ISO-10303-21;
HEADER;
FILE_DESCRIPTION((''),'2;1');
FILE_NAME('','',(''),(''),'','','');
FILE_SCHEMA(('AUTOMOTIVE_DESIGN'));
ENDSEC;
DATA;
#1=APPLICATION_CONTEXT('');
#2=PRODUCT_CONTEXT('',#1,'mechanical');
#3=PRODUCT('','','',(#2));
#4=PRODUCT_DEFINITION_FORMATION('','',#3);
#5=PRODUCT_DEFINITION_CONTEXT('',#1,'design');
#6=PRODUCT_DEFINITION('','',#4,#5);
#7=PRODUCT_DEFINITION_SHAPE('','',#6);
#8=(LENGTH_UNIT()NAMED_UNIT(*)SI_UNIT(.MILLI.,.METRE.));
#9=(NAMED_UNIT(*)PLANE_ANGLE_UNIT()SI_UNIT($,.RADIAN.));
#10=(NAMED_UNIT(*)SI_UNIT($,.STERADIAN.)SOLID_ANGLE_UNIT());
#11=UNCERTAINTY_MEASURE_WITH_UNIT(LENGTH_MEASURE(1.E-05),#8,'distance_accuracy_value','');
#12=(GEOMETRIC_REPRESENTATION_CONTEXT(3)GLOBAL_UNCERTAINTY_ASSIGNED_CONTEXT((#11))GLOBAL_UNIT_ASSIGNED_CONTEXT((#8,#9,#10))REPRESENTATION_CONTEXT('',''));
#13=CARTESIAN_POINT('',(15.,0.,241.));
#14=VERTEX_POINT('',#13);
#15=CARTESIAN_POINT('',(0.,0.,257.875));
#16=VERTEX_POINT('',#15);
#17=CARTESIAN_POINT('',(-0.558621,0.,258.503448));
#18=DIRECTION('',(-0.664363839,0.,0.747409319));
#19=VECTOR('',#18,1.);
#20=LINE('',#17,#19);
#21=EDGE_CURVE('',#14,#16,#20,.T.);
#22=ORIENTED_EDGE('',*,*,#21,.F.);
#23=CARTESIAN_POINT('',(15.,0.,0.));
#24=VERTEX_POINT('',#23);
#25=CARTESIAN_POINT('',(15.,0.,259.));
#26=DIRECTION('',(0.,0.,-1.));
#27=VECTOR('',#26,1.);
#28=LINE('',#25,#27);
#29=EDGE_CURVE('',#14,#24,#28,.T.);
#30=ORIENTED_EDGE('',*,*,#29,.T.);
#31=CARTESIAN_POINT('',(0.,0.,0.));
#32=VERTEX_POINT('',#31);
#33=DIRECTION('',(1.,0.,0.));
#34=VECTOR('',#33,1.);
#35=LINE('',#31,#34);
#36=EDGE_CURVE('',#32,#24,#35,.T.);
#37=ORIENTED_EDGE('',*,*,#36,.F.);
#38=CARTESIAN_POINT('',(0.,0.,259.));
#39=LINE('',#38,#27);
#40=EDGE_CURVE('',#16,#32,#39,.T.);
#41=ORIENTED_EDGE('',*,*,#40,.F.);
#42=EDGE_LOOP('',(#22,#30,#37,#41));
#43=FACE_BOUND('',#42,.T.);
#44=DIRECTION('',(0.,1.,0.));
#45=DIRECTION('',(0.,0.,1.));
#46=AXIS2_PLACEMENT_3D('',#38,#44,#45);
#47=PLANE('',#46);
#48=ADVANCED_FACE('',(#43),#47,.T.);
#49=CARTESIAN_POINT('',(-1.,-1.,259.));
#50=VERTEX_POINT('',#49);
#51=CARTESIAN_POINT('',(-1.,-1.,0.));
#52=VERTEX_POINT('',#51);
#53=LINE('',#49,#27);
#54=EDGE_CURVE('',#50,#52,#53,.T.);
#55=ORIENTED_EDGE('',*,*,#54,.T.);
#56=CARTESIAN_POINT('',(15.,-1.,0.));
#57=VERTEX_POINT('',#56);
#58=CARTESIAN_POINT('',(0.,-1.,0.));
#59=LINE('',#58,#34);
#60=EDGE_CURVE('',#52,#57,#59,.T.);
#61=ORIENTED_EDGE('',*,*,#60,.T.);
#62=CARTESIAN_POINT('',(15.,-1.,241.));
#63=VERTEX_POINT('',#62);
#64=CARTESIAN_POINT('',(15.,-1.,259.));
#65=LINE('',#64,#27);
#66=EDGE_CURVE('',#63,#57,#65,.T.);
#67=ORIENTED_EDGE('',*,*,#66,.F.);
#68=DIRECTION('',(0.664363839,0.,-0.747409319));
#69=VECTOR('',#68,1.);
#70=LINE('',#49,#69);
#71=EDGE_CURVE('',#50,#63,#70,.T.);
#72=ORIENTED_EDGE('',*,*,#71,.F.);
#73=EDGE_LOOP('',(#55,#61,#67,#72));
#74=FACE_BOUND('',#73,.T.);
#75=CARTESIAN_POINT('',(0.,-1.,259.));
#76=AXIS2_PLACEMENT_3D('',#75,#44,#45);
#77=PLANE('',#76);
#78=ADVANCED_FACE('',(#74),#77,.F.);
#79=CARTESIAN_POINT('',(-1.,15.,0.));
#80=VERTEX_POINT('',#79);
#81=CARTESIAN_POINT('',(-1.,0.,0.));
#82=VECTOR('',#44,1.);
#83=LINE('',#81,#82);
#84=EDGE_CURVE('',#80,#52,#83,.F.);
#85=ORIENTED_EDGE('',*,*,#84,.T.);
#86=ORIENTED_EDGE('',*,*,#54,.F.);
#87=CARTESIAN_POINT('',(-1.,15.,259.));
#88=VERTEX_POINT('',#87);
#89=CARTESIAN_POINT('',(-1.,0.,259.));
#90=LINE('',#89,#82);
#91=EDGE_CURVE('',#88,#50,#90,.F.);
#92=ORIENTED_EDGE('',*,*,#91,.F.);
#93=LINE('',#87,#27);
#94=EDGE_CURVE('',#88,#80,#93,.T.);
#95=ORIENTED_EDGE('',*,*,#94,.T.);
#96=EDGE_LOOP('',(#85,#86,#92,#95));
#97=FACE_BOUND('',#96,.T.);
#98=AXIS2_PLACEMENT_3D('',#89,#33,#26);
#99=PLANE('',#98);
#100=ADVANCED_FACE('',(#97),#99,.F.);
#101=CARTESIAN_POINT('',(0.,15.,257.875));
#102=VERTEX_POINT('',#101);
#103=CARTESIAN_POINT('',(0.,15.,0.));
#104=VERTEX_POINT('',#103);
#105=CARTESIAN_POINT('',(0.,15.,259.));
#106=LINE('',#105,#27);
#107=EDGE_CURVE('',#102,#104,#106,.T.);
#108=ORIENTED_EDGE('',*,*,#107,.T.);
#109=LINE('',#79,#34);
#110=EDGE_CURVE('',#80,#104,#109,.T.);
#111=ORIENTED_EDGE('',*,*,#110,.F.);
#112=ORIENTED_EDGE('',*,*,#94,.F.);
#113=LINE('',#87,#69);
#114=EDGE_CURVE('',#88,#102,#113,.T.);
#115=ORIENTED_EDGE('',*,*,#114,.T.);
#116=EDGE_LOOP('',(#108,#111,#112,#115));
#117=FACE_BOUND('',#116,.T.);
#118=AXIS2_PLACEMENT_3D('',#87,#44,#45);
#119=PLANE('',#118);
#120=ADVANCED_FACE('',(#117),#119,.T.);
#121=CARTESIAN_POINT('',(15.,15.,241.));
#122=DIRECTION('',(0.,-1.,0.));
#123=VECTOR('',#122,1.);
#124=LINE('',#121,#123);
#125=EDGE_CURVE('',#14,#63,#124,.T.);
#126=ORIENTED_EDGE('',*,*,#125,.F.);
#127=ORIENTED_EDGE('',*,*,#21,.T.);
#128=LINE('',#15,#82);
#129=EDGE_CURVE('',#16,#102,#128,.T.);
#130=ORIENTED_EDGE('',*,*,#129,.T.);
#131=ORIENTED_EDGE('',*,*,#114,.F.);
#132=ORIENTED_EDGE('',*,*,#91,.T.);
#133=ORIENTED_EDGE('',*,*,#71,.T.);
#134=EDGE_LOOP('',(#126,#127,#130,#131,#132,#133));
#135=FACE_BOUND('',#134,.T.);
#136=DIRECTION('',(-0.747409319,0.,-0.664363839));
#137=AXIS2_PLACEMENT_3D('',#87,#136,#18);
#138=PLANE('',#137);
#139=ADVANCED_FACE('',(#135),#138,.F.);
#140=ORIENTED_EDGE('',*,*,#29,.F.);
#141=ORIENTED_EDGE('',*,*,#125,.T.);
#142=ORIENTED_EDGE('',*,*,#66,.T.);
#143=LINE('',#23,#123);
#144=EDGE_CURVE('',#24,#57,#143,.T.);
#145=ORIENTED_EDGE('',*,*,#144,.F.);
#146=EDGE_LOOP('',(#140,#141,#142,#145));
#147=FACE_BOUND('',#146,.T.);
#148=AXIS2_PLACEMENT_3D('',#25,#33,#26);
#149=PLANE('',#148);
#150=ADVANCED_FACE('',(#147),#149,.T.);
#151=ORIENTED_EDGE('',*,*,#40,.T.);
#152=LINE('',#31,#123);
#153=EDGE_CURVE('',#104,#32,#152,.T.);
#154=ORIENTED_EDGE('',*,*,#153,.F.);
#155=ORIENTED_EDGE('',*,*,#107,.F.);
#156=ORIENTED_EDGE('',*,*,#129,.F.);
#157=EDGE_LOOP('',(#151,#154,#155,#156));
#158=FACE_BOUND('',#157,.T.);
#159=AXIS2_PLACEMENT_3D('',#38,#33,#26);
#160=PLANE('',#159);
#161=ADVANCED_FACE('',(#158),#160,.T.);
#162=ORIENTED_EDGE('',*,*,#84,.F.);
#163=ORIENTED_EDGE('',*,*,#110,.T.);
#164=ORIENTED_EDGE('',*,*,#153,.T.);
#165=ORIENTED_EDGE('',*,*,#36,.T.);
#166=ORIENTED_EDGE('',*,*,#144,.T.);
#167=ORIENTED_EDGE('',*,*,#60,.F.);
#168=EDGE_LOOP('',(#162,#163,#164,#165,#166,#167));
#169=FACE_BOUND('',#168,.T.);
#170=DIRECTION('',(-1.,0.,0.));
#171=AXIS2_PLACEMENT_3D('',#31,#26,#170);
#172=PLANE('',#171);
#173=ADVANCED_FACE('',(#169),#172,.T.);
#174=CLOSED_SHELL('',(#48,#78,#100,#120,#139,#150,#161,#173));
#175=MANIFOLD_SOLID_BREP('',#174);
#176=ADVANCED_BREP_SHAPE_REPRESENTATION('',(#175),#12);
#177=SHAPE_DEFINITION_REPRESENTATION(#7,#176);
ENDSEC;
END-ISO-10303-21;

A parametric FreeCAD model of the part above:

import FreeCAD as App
import Part
import Sketcher

V = App.Vector


def add_polygon(sketch, points):
    """Adds a closed chain of lines whose ends are joined by coincident constraints."""
    first, n = sketch.GeometryCount, len(points)
    for a, b in zip(points, points[1:] + points[:1]):
        sketch.addGeometry(Part.LineSegment(App.Vector(*a, 0), App.Vector(*b, 0)), False)
    for i in range(n):
        sketch.addConstraint(Sketcher.Constraint("Coincident", first + i, 2, first + (i + 1) % n, 1))

doc = App.newDocument("Part")
params = doc.addObject("Spreadsheet::Sheet", "Params")
for row, (alias, value) in enumerate([
    ("sketch1_width", "15 mm"),
    ("sketch1_width2", "1 mm"),
    ("pad1_length", "259 mm"),
    ("sketch2_width", "16 mm"),
    ("sketch2_height", "18 mm"),
], start=1):
    params.set(f"A{row}", alias)
    params.set(f"B{row}", "=" + value)
    params.setAlias(f"B{row}", alias)

body = doc.addObject("PartDesign::Body", "Body")

# Sketch on XY plane
sketch1 = body.newObject("Sketcher::SketchObject", "Sketch")
sketch1.AttachmentSupport = (doc.getObject("XY_Plane"), [""])
sketch1.MapMode = "FlatFace"
add_polygon(sketch1, [(15, 0), (0, 0), (0, 15), (-1, 15), (-1, -1), (15, -1)])  # lines 0-5
sketch1.addConstraint([
    Sketcher.Constraint("Horizontal", 0),
    Sketcher.Constraint("Vertical", 1),
    Sketcher.Constraint("Horizontal", 2),
    Sketcher.Constraint("Vertical", 3),
    Sketcher.Constraint("Horizontal", 4),
    Sketcher.Constraint("Vertical", 5),
    Sketcher.Constraint("Coincident", 0, 2, -1, 1),
    Sketcher.Constraint("Equal", 0, 1),
    Sketcher.Constraint("Equal", 4, 3),
    Sketcher.Constraint("DistanceX", 0, 2, 0, 1, 15.0),
    Sketcher.Constraint("DistanceX", 2, 2, 2, 1, 1.0),
])
sketch1.setExpression("Constraints[15]", "Params.sketch1_width")
sketch1.setExpression("Constraints[16]", "Params.sketch1_width2")
pad1 = body.newObject("PartDesign::Pad", "Pad")
pad1.Profile = sketch1
pad1.setExpression("Length", "Params.pad1_length")

# Sketch on XZ plane
sketch2 = body.newObject("Sketcher::SketchObject", "Sketch001")
sketch2.AttachmentSupport = (doc.getObject("XZ_Plane"), [""])
sketch2.MapMode = "FlatFace"
sketch2.AttachmentOffset = App.Placement(V(0, 0, 1), App.Rotation())
add_polygon(sketch2, [(-1, 259), (15, 241), (15, 259)])  # lines 0-2
sketch2.addConstraint([
    Sketcher.Constraint("Vertical", 1),
    Sketcher.Constraint("Horizontal", 2),
    Sketcher.Constraint("DistanceX", 2, 2, 2, 1, 16.0),
    Sketcher.Constraint("DistanceY", 1, 1, 1, 2, 18.0),
    Sketcher.Constraint("DistanceX", -1, 1, 0, 2, 15.0),
    Sketcher.Constraint("DistanceY", -1, 1, 0, 2, 241.0),
])
sketch2.setExpression("Constraints[5]", "Params.sketch2_width")
sketch2.setExpression("Constraints[6]", "Params.sketch2_height")
pocket1 = body.newObject("PartDesign::Pocket", "Pocket")
pocket1.Profile = sketch2
pocket1.Type = "ThroughAll"

doc.recompute()
